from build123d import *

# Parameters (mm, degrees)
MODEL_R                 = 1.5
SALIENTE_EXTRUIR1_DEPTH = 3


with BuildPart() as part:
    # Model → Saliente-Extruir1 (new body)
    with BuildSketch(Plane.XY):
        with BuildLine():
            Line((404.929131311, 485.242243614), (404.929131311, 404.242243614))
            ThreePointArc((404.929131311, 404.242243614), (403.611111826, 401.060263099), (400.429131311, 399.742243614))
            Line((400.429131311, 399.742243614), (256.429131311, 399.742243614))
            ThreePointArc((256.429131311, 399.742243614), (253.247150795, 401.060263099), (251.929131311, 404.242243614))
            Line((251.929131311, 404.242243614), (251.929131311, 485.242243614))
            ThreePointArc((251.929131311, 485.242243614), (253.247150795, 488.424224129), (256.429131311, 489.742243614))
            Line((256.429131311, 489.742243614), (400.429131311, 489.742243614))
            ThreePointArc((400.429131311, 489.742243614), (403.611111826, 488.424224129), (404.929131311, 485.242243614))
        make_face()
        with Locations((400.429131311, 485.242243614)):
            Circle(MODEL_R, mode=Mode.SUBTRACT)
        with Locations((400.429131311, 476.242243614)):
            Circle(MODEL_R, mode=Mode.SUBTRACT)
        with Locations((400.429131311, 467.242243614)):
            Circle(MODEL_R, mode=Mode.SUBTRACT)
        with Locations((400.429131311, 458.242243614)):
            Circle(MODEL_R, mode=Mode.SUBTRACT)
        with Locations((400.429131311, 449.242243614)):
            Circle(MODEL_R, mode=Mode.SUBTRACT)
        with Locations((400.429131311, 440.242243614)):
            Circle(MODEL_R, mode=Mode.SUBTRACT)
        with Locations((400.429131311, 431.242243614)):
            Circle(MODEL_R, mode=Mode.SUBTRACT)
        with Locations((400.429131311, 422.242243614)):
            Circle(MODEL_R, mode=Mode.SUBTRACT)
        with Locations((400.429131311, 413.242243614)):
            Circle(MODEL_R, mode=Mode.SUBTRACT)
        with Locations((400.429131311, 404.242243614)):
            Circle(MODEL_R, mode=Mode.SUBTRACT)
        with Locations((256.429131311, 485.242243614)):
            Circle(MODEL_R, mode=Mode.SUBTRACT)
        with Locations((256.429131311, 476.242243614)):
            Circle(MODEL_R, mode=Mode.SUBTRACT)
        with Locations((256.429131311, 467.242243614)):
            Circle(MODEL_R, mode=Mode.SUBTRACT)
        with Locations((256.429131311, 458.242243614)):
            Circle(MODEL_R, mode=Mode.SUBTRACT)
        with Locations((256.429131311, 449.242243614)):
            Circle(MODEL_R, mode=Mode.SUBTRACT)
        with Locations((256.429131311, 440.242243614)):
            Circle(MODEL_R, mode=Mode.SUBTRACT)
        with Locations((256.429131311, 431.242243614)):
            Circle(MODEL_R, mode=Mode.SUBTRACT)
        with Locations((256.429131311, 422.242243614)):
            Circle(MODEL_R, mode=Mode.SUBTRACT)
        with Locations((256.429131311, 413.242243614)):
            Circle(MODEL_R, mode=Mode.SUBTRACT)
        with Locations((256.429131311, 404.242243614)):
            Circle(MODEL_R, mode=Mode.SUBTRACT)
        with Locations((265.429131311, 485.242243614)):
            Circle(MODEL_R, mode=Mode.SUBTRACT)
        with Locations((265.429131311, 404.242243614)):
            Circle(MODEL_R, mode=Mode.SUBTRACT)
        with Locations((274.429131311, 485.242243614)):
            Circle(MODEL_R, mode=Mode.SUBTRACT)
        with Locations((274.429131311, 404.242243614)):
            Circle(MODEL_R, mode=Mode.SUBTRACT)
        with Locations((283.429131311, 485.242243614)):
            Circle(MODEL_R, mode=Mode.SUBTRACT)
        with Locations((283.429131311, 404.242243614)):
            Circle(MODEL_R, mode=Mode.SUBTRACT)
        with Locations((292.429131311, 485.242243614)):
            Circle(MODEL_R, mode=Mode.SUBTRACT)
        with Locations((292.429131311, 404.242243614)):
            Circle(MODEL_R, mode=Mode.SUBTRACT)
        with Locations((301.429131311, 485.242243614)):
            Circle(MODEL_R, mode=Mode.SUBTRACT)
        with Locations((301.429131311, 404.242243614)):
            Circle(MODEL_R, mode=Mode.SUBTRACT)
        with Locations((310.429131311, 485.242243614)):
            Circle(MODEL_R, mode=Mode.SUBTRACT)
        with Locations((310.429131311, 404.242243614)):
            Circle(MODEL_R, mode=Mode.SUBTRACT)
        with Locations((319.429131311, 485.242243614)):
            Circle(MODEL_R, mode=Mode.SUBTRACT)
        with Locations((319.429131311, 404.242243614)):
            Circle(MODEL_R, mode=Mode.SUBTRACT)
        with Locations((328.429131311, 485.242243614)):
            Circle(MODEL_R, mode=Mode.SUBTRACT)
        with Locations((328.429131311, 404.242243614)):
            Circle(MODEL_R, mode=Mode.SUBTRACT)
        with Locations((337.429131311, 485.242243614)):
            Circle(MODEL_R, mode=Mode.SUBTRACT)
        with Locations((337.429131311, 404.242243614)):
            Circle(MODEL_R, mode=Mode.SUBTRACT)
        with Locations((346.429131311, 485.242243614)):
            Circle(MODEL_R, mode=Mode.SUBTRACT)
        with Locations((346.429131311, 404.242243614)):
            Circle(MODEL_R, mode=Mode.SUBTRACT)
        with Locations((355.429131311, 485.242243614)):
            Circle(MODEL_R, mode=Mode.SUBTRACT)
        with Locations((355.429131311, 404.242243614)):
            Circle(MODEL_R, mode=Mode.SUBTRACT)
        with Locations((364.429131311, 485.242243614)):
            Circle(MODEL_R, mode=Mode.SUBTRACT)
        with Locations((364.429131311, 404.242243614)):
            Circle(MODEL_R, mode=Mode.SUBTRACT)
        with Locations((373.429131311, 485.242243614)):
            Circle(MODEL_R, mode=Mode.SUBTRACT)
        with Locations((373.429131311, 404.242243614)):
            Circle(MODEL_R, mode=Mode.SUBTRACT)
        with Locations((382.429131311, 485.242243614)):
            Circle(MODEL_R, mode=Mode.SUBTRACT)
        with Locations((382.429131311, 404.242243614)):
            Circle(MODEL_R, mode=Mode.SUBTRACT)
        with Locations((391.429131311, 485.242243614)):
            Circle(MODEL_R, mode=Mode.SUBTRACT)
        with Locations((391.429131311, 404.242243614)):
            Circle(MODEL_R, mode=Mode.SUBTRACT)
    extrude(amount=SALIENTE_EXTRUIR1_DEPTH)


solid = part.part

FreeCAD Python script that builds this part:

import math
import FreeCAD as App
import Part
import Sketcher

doc = App.newDocument("Part")
body = doc.addObject("PartDesign::Body", "Body")

# Sketch on XY plane
sketch1 = doc.addObject("Sketcher::SketchObject", "Sketch")
body.addObject(sketch1)
sketch1.AttachmentSupport = (doc.XY_Plane, [""])
sketch1.MapMode = "FlatFace"
sketch1.addGeometry([
    Part.LineSegment(App.Vector(404.9, 404.2, 0), App.Vector(404.9, 485.2, 0)),  # 0
    Part.ArcOfCircle(Part.Circle(App.Vector(400.4, 485.2, 0), App.Vector(0, 0, 1), 4.5), math.radians(0), math.radians(90)),  # 1
    Part.LineSegment(App.Vector(400.4, 489.7, 0), App.Vector(256.4, 489.7, 0)),  # 2
    Part.ArcOfCircle(Part.Circle(App.Vector(256.4, 485.2, 0), App.Vector(0, 0, 1), 4.5), math.radians(90), math.radians(180)),  # 3
    Part.LineSegment(App.Vector(251.9, 485.2, 0), App.Vector(251.9, 404.2, 0)),  # 4
    Part.ArcOfCircle(Part.Circle(App.Vector(256.4, 404.2, 0), App.Vector(0, 0, 1), 4.5), math.radians(180), math.radians(270)),  # 5
    Part.LineSegment(App.Vector(256.4, 399.7, 0), App.Vector(400.4, 399.7, 0)),  # 6
    Part.ArcOfCircle(Part.Circle(App.Vector(400.4, 404.2, 0), App.Vector(0, 0, 1), 4.5), math.radians(-90), math.radians(0)),  # 7
    Part.Circle(App.Vector(400.4, 404.2, 0), App.Vector(0, 0, 1), 1.5),  # 8
    Part.Circle(App.Vector(391.4, 404.2, 0), App.Vector(0, 0, 1), 1.5),  # 9
    Part.Circle(App.Vector(382.4, 404.2, 0), App.Vector(0, 0, 1), 1.5),  # 10
    Part.Circle(App.Vector(373.4, 404.2, 0), App.Vector(0, 0, 1), 1.5),  # 11
    Part.Circle(App.Vector(400.4, 413.2, 0), App.Vector(0, 0, 1), 1.5),  # 12
    Part.Circle(App.Vector(400.4, 422.2, 0), App.Vector(0, 0, 1), 1.5),  # 13
    Part.Circle(App.Vector(364.4, 404.2, 0), App.Vector(0, 0, 1), 1.5),  # 14
    Part.Circle(App.Vector(355.4, 404.2, 0), App.Vector(0, 0, 1), 1.5),  # 15
    Part.Circle(App.Vector(346.4, 404.2, 0), App.Vector(0, 0, 1), 1.5),  # 16
    Part.Circle(App.Vector(337.4, 404.2, 0), App.Vector(0, 0, 1), 1.5),  # 17
    Part.Circle(App.Vector(400.4, 431.2, 0), App.Vector(0, 0, 1), 1.5),  # 18
    Part.Circle(App.Vector(400.4, 440.2, 0), App.Vector(0, 0, 1), 1.5),  # 19
    Part.Circle(App.Vector(328.4, 404.2, 0), App.Vector(0, 0, 1), 1.5),  # 20
    Part.Circle(App.Vector(319.4, 404.2, 0), App.Vector(0, 0, 1), 1.5),  # 21
    Part.Circle(App.Vector(310.4, 404.2, 0), App.Vector(0, 0, 1), 1.5),  # 22
    Part.Circle(App.Vector(301.4, 404.2, 0), App.Vector(0, 0, 1), 1.5),  # 23
    Part.Circle(App.Vector(292.4, 404.2, 0), App.Vector(0, 0, 1), 1.5),  # 24
    Part.Circle(App.Vector(283.4, 404.2, 0), App.Vector(0, 0, 1), 1.5),  # 25
    Part.Circle(App.Vector(274.4, 404.2, 0), App.Vector(0, 0, 1), 1.5),  # 26
    Part.Circle(App.Vector(265.4, 404.2, 0), App.Vector(0, 0, 1), 1.5),  # 27
    Part.Circle(App.Vector(256.4, 404.2, 0), App.Vector(0, 0, 1), 1.5),  # 28
    Part.Circle(App.Vector(256.4, 413.2, 0), App.Vector(0, 0, 1), 1.5),  # 29
    Part.Circle(App.Vector(256.4, 422.2, 0), App.Vector(0, 0, 1), 1.5),  # 30
    Part.Circle(App.Vector(256.4, 431.2, 0), App.Vector(0, 0, 1), 1.5),  # 31
    Part.Circle(App.Vector(256.4, 440.2, 0), App.Vector(0, 0, 1), 1.5),  # 32
    Part.Circle(App.Vector(400.4, 449.2, 0), App.Vector(0, 0, 1), 1.5),  # 33
    Part.Circle(App.Vector(400.4, 458.2, 0), App.Vector(0, 0, 1), 1.5),  # 34
    Part.Circle(App.Vector(400.4, 467.2, 0), App.Vector(0, 0, 1), 1.5),  # 35
    Part.Circle(App.Vector(400.4, 476.2, 0), App.Vector(0, 0, 1), 1.5),  # 36
    Part.Circle(App.Vector(400.4, 485.2, 0), App.Vector(0, 0, 1), 1.5),  # 37
    Part.Circle(App.Vector(391.4, 485.2, 0), App.Vector(0, 0, 1), 1.5),  # 38
    Part.Circle(App.Vector(382.4, 485.2, 0), App.Vector(0, 0, 1), 1.5),  # 39
    Part.Circle(App.Vector(373.4, 485.2, 0), App.Vector(0, 0, 1), 1.5),  # 40
    Part.Circle(App.Vector(364.4, 485.2, 0), App.Vector(0, 0, 1), 1.5),  # 41
    Part.Circle(App.Vector(355.4, 485.2, 0), App.Vector(0, 0, 1), 1.5),  # 42
    Part.Circle(App.Vector(346.4, 485.2, 0), App.Vector(0, 0, 1), 1.5),  # 43
    Part.Circle(App.Vector(337.4, 485.2, 0), App.Vector(0, 0, 1), 1.5),  # 44
    Part.Circle(App.Vector(256.4, 449.2, 0), App.Vector(0, 0, 1), 1.5),  # 45
    Part.Circle(App.Vector(256.4, 458.2, 0), App.Vector(0, 0, 1), 1.5),  # 46
    Part.Circle(App.Vector(328.4, 485.2, 0), App.Vector(0, 0, 1), 1.5),  # 47
    Part.Circle(App.Vector(319.4, 485.2, 0), App.Vector(0, 0, 1), 1.5),  # 48
    Part.Circle(App.Vector(310.4, 485.2, 0), App.Vector(0, 0, 1), 1.5),  # 49
    Part.Circle(App.Vector(301.4, 485.2, 0), App.Vector(0, 0, 1), 1.5),  # 50
    Part.Circle(App.Vector(292.4, 485.2, 0), App.Vector(0, 0, 1), 1.5),  # 51
    Part.Circle(App.Vector(256.4, 467.2, 0), App.Vector(0, 0, 1), 1.5),  # 52
    Part.Circle(App.Vector(283.4, 485.2, 0), App.Vector(0, 0, 1), 1.5),  # 53
    Part.Circle(App.Vector(274.4, 485.2, 0), App.Vector(0, 0, 1), 1.5),  # 54
    Part.Circle(App.Vector(256.4, 476.2, 0), App.Vector(0, 0, 1), 1.5),  # 55
    Part.Circle(App.Vector(265.4, 485.2, 0), App.Vector(0, 0, 1), 1.5),  # 56
    Part.Circle(App.Vector(256.4, 485.2, 0), App.Vector(0, 0, 1), 1.5),  # 57
], False)
sketch1.addConstraint([
    Sketcher.Constraint("Tangent", 0, 2, 1, 1),
    Sketcher.Constraint("Tangent", 1, 2, 2, 1),
    Sketcher.Constraint("Tangent", 2, 2, 3, 1),
    Sketcher.Constraint("Tangent", 3, 2, 4, 1),
    Sketcher.Constraint("Tangent", 4, 2, 5, 1),
    Sketcher.Constraint("Tangent", 5, 2, 6, 1),
    Sketcher.Constraint("Tangent", 6, 2, 7, 1),
    Sketcher.Constraint("Tangent", 7, 2, 0, 1),
    Sketcher.Constraint("Vertical", 0),
    Sketcher.Constraint("Horizontal", 2),
    Sketcher.Constraint("Vertical", 4),
    Sketcher.Constraint("Horizontal", 6),
    Sketcher.Constraint("Coincident", 8, 3, 7, 3),
    Sketcher.Constraint("Coincident", 28, 3, 5, 3),
    Sketcher.Constraint("Coincident", 37, 3, 1, 3),
    Sketcher.Constraint("Coincident", 57, 3, 3, 3),
    Sketcher.Constraint("Equal", 1, 3),
    Sketcher.Constraint("Equal", 3, 5),
    Sketcher.Constraint("Equal", 5, 7),
    Sketcher.Constraint("Equal", 8, 9),
    Sketcher.Constraint("Equal", 9, 10),
    Sketcher.Constraint("Equal", 10, 11),
    Sketcher.Constraint("Equal", 11, 12),
    Sketcher.Constraint("Equal", 12, 13),
    Sketcher.Constraint("Equal", 13, 14),
    Sketcher.Constraint("Equal", 14, 15),
    Sketcher.Constraint("Equal", 15, 16),
    Sketcher.Constraint("Equal", 16, 17),
    Sketcher.Constraint("Equal", 17, 18),
    Sketcher.Constraint("Equal", 18, 19),
    Sketcher.Constraint("Equal", 19, 20),
    Sketcher.Constraint("Equal", 20, 21),
    Sketcher.Constraint("Equal", 21, 22),
    Sketcher.Constraint("Equal", 22, 23),
    Sketcher.Constraint("Equal", 23, 24),
    Sketcher.Constraint("Equal", 24, 25),
    Sketcher.Constraint("Equal", 25, 26),
    Sketcher.Constraint("Equal", 26, 27),
    Sketcher.Constraint("Equal", 27, 28),
    Sketcher.Constraint("Equal", 28, 29),
    Sketcher.Constraint("Equal", 29, 30),
    Sketcher.Constraint("Equal", 30, 31),
    Sketcher.Constraint("Equal", 31, 32),
    Sketcher.Constraint("Equal", 32, 33),
    Sketcher.Constraint("Equal", 33, 34),
    Sketcher.Constraint("Equal", 34, 35),
    Sketcher.Constraint("Equal", 35, 36),
    Sketcher.Constraint("Equal", 36, 37),
    Sketcher.Constraint("Equal", 37, 38),
    Sketcher.Constraint("Equal", 38, 39),
    Sketcher.Constraint("Equal", 39, 40),
    Sketcher.Constraint("Equal", 40, 41),
    Sketcher.Constraint("Equal", 41, 42),
    Sketcher.Constraint("Equal", 42, 43),
    Sketcher.Constraint("Equal", 43, 44),
    Sketcher.Constraint("Equal", 44, 45),
    Sketcher.Constraint("Equal", 45, 46),
    Sketcher.Constraint("Equal", 46, 47),
    Sketcher.Constraint("Equal", 47, 48),
    Sketcher.Constraint("Equal", 48, 49),
    Sketcher.Constraint("Equal", 49, 50),
    Sketcher.Constraint("Equal", 50, 51),
    Sketcher.Constraint("Equal", 51, 52),
    Sketcher.Constraint("Equal", 52, 53),
    Sketcher.Constraint("Equal", 53, 54),
    Sketcher.Constraint("Equal", 54, 55),
    Sketcher.Constraint("Equal", 55, 56),
    Sketcher.Constraint("Equal", 56, 57),
    Sketcher.Constraint("Horizontal", 8, 3, 9, 3),
    Sketcher.Constraint("Horizontal", 9, 3, 10, 3),
    Sketcher.Constraint("Horizontal", 10, 3, 11, 3),
    Sketcher.Constraint("Horizontal", 11, 3, 14, 3),
    Sketcher.Constraint("Horizontal", 14, 3, 15, 3),
    Sketcher.Constraint("Horizontal", 15, 3, 16, 3),
    Sketcher.Constraint("Horizontal", 16, 3, 17, 3),
    Sketcher.Constraint("Horizontal", 17, 3, 20, 3),
    Sketcher.Constraint("Horizontal", 20, 3, 21, 3),
    Sketcher.Constraint("Horizontal", 21, 3, 22, 3),
    Sketcher.Constraint("Horizontal", 22, 3, 23, 3),
    Sketcher.Constraint("Horizontal", 23, 3, 24, 3),
    Sketcher.Constraint("Horizontal", 24, 3, 25, 3),
    Sketcher.Constraint("Horizontal", 25, 3, 26, 3),
    Sketcher.Constraint("Horizontal", 26, 3, 27, 3),
    Sketcher.Constraint("Horizontal", 12, 3, 29, 3),
    Sketcher.Constraint("Horizontal", 13, 3, 30, 3),
    Sketcher.Constraint("Horizontal", 18, 3, 31, 3),
    Sketcher.Constraint("Horizontal", 19, 3, 32, 3),
    Sketcher.Constraint("Horizontal", 37, 3, 38, 3),
    Sketcher.Constraint("Horizontal", 38, 3, 39, 3),
    Sketcher.Constraint("Horizontal", 39, 3, 40, 3),
    Sketcher.Constraint("Horizontal", 40, 3, 41, 3),
    Sketcher.Constraint("Horizontal", 41, 3, 42, 3),
    Sketcher.Constraint("Horizontal", 42, 3, 43, 3),
    Sketcher.Constraint("Horizontal", 43, 3, 44, 3),
    Sketcher.Constraint("Horizontal", 33, 3, 45, 3),
    Sketcher.Constraint("Horizontal", 34, 3, 46, 3),
    Sketcher.Constraint("Horizontal", 44, 3, 47, 3),
    Sketcher.Constraint("Horizontal", 47, 3, 48, 3),
    Sketcher.Constraint("Horizontal", 48, 3, 49, 3),
    Sketcher.Constraint("Horizontal", 49, 3, 50, 3),
    Sketcher.Constraint("Horizontal", 50, 3, 51, 3),
    Sketcher.Constraint("Horizontal", 35, 3, 52, 3),
    Sketcher.Constraint("Horizontal", 51, 3, 53, 3),
    Sketcher.Constraint("Horizontal", 53, 3, 54, 3),
    Sketcher.Constraint("Horizontal", 36, 3, 55, 3),
    Sketcher.Constraint("Horizontal", 54, 3, 56, 3),
    Sketcher.Constraint("Vertical", 8, 3, 12, 3),
    Sketcher.Constraint("Vertical", 12, 3, 13, 3),
    Sketcher.Constraint("Vertical", 13, 3, 18, 3),
    Sketcher.Constraint("Vertical", 18, 3, 19, 3),
    Sketcher.Constraint("Vertical", 28, 3, 29, 3),
    Sketcher.Constraint("Vertical", 29, 3, 30, 3),
    Sketcher.Constraint("Vertical", 30, 3, 31, 3),
    Sketcher.Constraint("Vertical", 31, 3, 32, 3),
    Sketcher.Constraint("Vertical", 19, 3, 33, 3),
    Sketcher.Constraint("Vertical", 33, 3, 34, 3),
    Sketcher.Constraint("Vertical", 34, 3, 35, 3),
    Sketcher.Constraint("Vertical", 35, 3, 36, 3),
    Sketcher.Constraint("Vertical", 9, 3, 38, 3),
    Sketcher.Constraint("Vertical", 10, 3, 39, 3),
    Sketcher.Constraint("Vertical", 11, 3, 40, 3),
    Sketcher.Constraint("Vertical", 14, 3, 41, 3),
    Sketcher.Constraint("Vertical", 15, 3, 42, 3),
    Sketcher.Constraint("Vertical", 16, 3, 43, 3),
    Sketcher.Constraint("Vertical", 17, 3, 44, 3),
    Sketcher.Constraint("Vertical", 32, 3, 45, 3),
    Sketcher.Constraint("Vertical", 45, 3, 46, 3),
    Sketcher.Constraint("Vertical", 20, 3, 47, 3),
    Sketcher.Constraint("Vertical", 21, 3, 48, 3),
    Sketcher.Constraint("Vertical", 22, 3, 49, 3),
    Sketcher.Constraint("Vertical", 23, 3, 50, 3),
    Sketcher.Constraint("Vertical", 24, 3, 51, 3),
    Sketcher.Constraint("Vertical", 46, 3, 52, 3),
    Sketcher.Constraint("Vertical", 25, 3, 53, 3),
    Sketcher.Constraint("Vertical", 26, 3, 54, 3),
    Sketcher.Constraint("Vertical", 52, 3, 55, 3),
    Sketcher.Constraint("Vertical", 27, 3, 56, 3),
    Sketcher.Constraint("Diameter", 8, 3.0),
    Sketcher.Constraint("Radius", 1, 4.5),
    Sketcher.Constraint("DistanceX", 2, 2, 2, 1, 144.0),
    Sketcher.Constraint("DistanceY", 0, 1, 0, 2, 81.0),
    Sketcher.Constraint("DistanceX", -1, 1, 1, 3, 400.429131),
    Sketcher.Constraint("DistanceX", -1, 1, 9, 3, 391.429131),
    Sketcher.Constraint("DistanceX", -1, 1, 10, 3, 382.429131),
    Sketcher.Constraint("DistanceX", -1, 1, 11, 3, 373.429131),
    Sketcher.Constraint("DistanceX", -1, 1, 14, 3, 364.429131),
    Sketcher.Constraint("DistanceX", -1, 1, 15, 3, 355.429131),
    Sketcher.Constraint("DistanceX", -1, 1, 16, 3, 346.429131),
    Sketcher.Constraint("DistanceX", -1, 1, 17, 3, 337.429131),
    Sketcher.Constraint("DistanceX", -1, 1, 20, 3, 328.429131),
    Sketcher.Constraint("DistanceX", -1, 1, 21, 3, 319.429131),
    Sketcher.Constraint("DistanceX", -1, 1, 22, 3, 310.429131),
    Sketcher.Constraint("DistanceX", -1, 1, 23, 3, 301.429131),
    Sketcher.Constraint("DistanceX", -1, 1, 24, 3, 292.429131),
    Sketcher.Constraint("DistanceX", -1, 1, 25, 3, 283.429131),
    Sketcher.Constraint("DistanceX", -1, 1, 26, 3, 274.429131),
    Sketcher.Constraint("DistanceX", -1, 1, 27, 3, 265.429131),
    Sketcher.Constraint("DistanceY", -1, 1, 1, 3, 485.242244),
    Sketcher.Constraint("DistanceY", -1, 1, 12, 3, 413.242244),
    Sketcher.Constraint("DistanceY", -1, 1, 13, 3, 422.242244),
    Sketcher.Constraint("DistanceY", -1, 1, 18, 3, 431.242244),
    Sketcher.Constraint("DistanceY", -1, 1, 19, 3, 440.242244),
    Sketcher.Constraint("DistanceY", -1, 1, 33, 3, 449.242244),
    Sketcher.Constraint("DistanceY", -1, 1, 34, 3, 458.242244),
    Sketcher.Constraint("DistanceY", -1, 1, 35, 3, 467.242244),
    Sketcher.Constraint("DistanceY", -1, 1, 36, 3, 476.242244),
])
pad1 = doc.addObject("PartDesign::Pad", "Pad")
body.addObject(pad1)
pad1.Profile = sketch1
pad1.Length = 3

doc.recompute()
